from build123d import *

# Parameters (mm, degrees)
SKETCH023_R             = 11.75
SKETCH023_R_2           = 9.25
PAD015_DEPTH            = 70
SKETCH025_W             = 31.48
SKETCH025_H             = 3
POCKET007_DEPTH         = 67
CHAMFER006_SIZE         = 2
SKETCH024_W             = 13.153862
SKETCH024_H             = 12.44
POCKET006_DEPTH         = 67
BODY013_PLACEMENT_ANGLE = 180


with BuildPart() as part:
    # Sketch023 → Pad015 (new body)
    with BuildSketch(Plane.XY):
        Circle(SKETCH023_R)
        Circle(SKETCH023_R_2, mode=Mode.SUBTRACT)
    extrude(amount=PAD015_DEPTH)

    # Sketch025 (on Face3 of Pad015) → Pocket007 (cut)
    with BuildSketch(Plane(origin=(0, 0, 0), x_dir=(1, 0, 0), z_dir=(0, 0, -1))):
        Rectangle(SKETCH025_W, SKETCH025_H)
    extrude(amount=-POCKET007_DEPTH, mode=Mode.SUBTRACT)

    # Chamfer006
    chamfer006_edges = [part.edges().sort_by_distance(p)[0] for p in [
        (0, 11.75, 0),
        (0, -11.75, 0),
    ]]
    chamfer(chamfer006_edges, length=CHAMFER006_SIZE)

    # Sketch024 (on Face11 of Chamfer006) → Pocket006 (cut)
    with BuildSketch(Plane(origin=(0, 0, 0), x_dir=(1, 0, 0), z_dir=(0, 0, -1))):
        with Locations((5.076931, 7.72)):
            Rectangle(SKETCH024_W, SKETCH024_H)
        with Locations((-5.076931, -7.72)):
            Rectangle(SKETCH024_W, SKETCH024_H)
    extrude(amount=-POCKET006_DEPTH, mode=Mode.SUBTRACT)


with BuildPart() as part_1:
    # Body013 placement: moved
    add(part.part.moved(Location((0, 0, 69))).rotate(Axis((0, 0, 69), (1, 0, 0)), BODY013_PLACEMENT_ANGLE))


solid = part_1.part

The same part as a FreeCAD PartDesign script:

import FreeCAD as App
import Part
import Sketcher

V = App.Vector
Q = App.Units.Quantity


def edges_at(feature, points):
    """Names of the edges that pass closest to the given points."""
    edges = feature.Shape.Edges
    near = lambda p: min(range(len(edges)), key=lambda i: edges[i].distToShape(Part.Vertex(*p))[0])
    return sorted({f"Edge{near(p) + 1}" for p in points})

doc = App.newDocument("Part")
body = doc.addObject("PartDesign::Body", "Body")

sketch1 = body.newObject("Sketcher::SketchObject", "Sketch")
sketch1.AttachmentSupport = (doc.getObject("XY_Plane"), [""])
sketch1.MapMode = "FlatFace"
sketch1.addGeometry([
    Part.Circle(V(0, 0, 0), V(0, 0, 1), 12),
    Part.Circle(V(0, 0, 0), V(0, 0, 1), 9),
], False)
sketch1.addConstraint([
    Sketcher.Constraint("Coincident", 0, 3, -1, 1),
    Sketcher.Constraint("Coincident", 1, 3, -1, 1),
    Sketcher.Constraint("Diameter", 0, Q("23.5 mm")),
    Sketcher.Constraint("Diameter", 1, Q("18.5 mm")),
])
pad1 = body.newObject("PartDesign::Pad", "Pad")
pad1.Profile = sketch1
pad1.Length = 70

sketch2 = body.newObject("Sketcher::SketchObject", "Sketch001")
sketch2.AttachmentSupport = (doc.getObject("XY_Plane"), [""])
sketch2.MapMode = "FlatFace"
sketch2.addGeometry([
    Part.LineSegment(V(-15.7, -1.5, 0), V(-15.7, 1.5, 0)),
    Part.LineSegment(V(-15.7, 1.5, 0), V(15.7, 1.5, 0)),
    Part.LineSegment(V(15.7, 1.5, 0), V(15.7, -1.5, 0)),
    Part.LineSegment(V(15.7, -1.5, 0), V(-15.7, -1.5, 0)),
], False)
sketch2.addConstraint([
    Sketcher.Constraint("Coincident", 0, 2, 1, 1),
    Sketcher.Constraint("Coincident", 1, 2, 2, 1),
    Sketcher.Constraint("Coincident", 2, 2, 3, 1),
    Sketcher.Constraint("Coincident", 3, 2, 0, 1),
    Sketcher.Constraint("Vertical", 0),
    Sketcher.Constraint("Horizontal", 1),
    Sketcher.Constraint("Vertical", 2),
    Sketcher.Constraint("Horizontal", 3),
    Sketcher.Constraint("Symmetric", 0, 2, 2, 2, -1, 1),
    Sketcher.Constraint("DistanceY", 0, 1, 0, 2, Q("3 mm")),
    Sketcher.Constraint("DistanceX", 1, 1, 1, 2, Q("31.48 mm")),
])
pocket1 = body.newObject("PartDesign::Pocket", "Pocket")
pocket1.Profile = sketch2
pocket1.Length = 67
pocket1.Reversed = True
doc.recompute()

chamfer = body.newObject("PartDesign::Chamfer", "Chamfer")
chamfer.Base = (pocket1, edges_at(pocket1, [(0, 11.75, 0), (0, -11.75, 0)]))
chamfer.Size = 2

sketch3 = body.newObject("Sketcher::SketchObject", "Sketch002")
sketch3.AttachmentSupport = (doc.getObject("XY_Plane"), [""])
sketch3.MapMode = "FlatFace"
sketch3.addGeometry([
    Part.LineSegment(V(-2, -14, 0), V(-2, -2, 0)),
    Part.LineSegment(V(-2, -2, 0), V(12, -2, 0)),
    Part.LineSegment(V(12, -2, 0), V(12, -14, 0)),
    Part.LineSegment(V(12, -14, 0), V(-2, -14, 0)),
    Part.LineSegment(V(-12, 2, 0), V(-12, 14, 0)),
    Part.LineSegment(V(-12, 14, 0), V(2, 14, 0)),
    Part.LineSegment(V(2, 14, 0), V(2, 2, 0)),
    Part.LineSegment(V(2, 2, 0), V(-12, 2, 0)),
], False)
sketch3.addConstraint([
    Sketcher.Constraint("Coincident", 0, 2, 1, 1),
    Sketcher.Constraint("Coincident", 1, 2, 2, 1),
    Sketcher.Constraint("Coincident", 2, 2, 3, 1),
    Sketcher.Constraint("Coincident", 3, 2, 0, 1),
    Sketcher.Constraint("Coincident", 4, 2, 5, 1),
    Sketcher.Constraint("Coincident", 5, 2, 6, 1),
    Sketcher.Constraint("Coincident", 6, 2, 7, 1),
    Sketcher.Constraint("Coincident", 7, 2, 4, 1),
    Sketcher.Constraint("Vertical", 0),
    Sketcher.Constraint("Horizontal", 1),
    Sketcher.Constraint("Vertical", 2),
    Sketcher.Constraint("Horizontal", 3),
    Sketcher.Constraint("Vertical", 4),
    Sketcher.Constraint("Horizontal", 5),
    Sketcher.Constraint("Vertical", 6),
    Sketcher.Constraint("Horizontal", 7),
    Sketcher.Constraint("Symmetric", 2, 2, 4, 2, -1, 1),
    Sketcher.Constraint("Symmetric", 0, 2, 6, 2, -1, 1),
    Sketcher.Constraint("DistanceX", 0, 2, 5, 2, Q("3 mm")),
    Sketcher.Constraint("DistanceY", 0, 2, 6, 2, Q("3 mm")),
    Sketcher.Constraint("DistanceY", 0, 1, 0, 2, Q("12.44 mm")),
    Sketcher.Constraint("DistanceX", 1, 1, 1, 2, Q("13.153862 mm")),
])
pocket2 = body.newObject("PartDesign::Pocket", "Pocket001")
pocket2.Profile = sketch3
pocket2.Length = 67
pocket2.Reversed = True
body2 = doc.addObject("PartDesign::Body", "Body001")
doc.recompute()

body.Placement = App.Placement(V(0, 0, 69), App.Rotation(V(1, 0, 0), 180))
boolean = body2.newObject("PartDesign::Boolean", "Boolean")
boolean.Type = "Fuse"
boolean.addObjects([body])

doc.recompute()
